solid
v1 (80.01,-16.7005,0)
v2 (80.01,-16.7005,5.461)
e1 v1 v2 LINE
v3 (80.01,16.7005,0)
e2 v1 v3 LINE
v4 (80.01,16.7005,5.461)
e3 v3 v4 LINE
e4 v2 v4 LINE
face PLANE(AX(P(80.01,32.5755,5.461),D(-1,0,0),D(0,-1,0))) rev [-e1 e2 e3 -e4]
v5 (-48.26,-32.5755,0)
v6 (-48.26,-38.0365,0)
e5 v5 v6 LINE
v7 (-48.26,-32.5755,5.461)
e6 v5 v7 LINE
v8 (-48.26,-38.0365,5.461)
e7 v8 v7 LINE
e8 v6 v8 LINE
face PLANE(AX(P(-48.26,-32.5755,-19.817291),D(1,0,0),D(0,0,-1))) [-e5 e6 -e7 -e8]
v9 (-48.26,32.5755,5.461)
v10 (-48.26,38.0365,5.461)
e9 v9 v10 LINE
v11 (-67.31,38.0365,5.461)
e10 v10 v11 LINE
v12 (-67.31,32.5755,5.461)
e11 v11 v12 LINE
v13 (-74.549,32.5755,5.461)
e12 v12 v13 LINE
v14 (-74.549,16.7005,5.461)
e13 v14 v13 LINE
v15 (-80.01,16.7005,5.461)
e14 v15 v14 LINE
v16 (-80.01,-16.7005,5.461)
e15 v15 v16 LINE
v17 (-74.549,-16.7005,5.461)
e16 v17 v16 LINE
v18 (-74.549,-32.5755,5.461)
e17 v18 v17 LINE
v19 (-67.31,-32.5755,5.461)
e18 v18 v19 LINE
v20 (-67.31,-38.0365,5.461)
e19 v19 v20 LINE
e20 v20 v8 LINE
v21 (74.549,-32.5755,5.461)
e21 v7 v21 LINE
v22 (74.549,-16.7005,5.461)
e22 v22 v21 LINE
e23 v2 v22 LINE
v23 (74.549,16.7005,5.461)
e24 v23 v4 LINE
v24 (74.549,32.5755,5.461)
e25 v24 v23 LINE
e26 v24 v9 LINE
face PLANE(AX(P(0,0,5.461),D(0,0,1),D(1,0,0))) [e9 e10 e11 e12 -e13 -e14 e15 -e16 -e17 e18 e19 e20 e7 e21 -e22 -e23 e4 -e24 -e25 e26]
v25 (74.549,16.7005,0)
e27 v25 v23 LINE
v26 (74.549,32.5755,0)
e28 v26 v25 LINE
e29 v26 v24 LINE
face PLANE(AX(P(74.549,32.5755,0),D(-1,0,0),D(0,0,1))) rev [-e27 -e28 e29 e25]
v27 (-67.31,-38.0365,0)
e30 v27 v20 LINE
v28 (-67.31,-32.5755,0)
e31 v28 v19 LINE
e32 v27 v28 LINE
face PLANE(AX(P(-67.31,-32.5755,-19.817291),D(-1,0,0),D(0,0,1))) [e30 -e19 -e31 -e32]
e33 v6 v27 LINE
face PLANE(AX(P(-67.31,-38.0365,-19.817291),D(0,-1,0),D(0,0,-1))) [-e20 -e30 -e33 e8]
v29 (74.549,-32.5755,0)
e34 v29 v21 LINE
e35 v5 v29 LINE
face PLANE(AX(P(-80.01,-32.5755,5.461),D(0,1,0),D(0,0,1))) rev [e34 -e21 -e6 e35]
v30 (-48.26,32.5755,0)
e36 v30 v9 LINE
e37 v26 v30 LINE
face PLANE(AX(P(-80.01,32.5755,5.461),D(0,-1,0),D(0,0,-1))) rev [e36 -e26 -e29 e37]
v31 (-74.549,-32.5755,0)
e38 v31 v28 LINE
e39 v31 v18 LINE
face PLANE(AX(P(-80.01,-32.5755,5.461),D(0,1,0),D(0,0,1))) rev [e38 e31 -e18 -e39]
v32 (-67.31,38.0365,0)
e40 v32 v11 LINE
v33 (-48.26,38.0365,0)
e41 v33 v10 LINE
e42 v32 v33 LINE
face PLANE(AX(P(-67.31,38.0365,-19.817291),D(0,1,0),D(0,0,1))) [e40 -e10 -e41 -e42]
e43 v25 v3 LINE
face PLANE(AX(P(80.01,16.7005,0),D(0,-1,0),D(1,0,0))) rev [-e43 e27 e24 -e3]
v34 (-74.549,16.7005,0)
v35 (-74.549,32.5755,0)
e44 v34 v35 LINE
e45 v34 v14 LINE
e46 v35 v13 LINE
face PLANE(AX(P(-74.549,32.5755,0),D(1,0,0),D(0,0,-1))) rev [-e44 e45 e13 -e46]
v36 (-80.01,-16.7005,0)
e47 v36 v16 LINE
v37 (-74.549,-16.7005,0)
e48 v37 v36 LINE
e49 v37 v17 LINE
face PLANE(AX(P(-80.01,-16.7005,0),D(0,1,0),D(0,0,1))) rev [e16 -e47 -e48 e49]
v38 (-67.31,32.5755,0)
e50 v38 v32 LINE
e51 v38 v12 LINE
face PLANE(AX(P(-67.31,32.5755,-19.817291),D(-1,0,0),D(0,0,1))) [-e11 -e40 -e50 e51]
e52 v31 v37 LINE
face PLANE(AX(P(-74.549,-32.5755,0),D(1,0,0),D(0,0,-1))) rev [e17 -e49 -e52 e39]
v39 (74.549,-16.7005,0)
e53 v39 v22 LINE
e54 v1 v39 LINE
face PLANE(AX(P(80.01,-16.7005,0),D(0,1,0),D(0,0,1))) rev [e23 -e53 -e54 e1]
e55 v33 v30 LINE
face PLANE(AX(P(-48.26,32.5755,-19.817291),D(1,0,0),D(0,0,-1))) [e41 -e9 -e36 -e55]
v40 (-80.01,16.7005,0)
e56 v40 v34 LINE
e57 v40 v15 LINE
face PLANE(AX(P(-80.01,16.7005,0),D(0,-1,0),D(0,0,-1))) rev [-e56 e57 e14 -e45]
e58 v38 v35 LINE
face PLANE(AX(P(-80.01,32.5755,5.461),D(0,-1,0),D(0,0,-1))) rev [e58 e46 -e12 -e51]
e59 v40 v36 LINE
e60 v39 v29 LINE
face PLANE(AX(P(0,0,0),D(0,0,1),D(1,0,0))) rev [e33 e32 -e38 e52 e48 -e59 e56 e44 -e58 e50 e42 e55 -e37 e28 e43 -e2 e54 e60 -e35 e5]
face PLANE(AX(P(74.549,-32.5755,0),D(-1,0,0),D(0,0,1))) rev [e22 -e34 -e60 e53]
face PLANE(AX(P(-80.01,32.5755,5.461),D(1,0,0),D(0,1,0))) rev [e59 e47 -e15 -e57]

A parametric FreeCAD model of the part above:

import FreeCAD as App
import Part
import Sketcher
from FreeCAD import Vector
Q = App.Units.Quantity

doc = App.newDocument("Part")
params = doc.addObject("Spreadsheet::Sheet", "Params")
for row, (alias, value) in enumerate([
    ("sketch1_width", "6.3 in"),
    ("sketch1_height", "2.565 in"),
    ("pad1_length", "0.215 in"),
    ("sketch2_width", "0.215 in"),
    ("sketch2_height", "0.625 in"),
    ("sketch3_width", "0.75 in"),
    ("sketch3_height", "0.215 in"),
    ("pad2_length", "0.215 in"),
], start=1):
    params.set(f"A{row}", alias)
    params.set(f"B{row}", "=" + value)
    params.setAlias(f"B{row}", alias)

body = doc.addObject("PartDesign::Body", "Body")

sketch1 = doc.addObject("Sketcher::SketchObject", "Sketch")
body.addObject(sketch1)
sketch1.AttachmentSupport = (doc.XY_Plane, [""])
sketch1.MapMode = "FlatFace"
sketch1.addGeometry(Part.LineSegment(Vector(-80, 33, 0), Vector(-80, -33, 0)), False)
sketch1.addGeometry(Part.LineSegment(Vector(-80, -33, 0), Vector(80, -33, 0)), False)
sketch1.addGeometry(Part.LineSegment(Vector(80, -33, 0), Vector(80, 33, 0)), False)
sketch1.addGeometry(Part.LineSegment(Vector(80, 33, 0), Vector(-80, 33, 0)), False)
sketch1.addConstraint(Sketcher.Constraint("Coincident", 0, 2, 1, 1))
sketch1.addConstraint(Sketcher.Constraint("Coincident", 1, 2, 2, 1))
sketch1.addConstraint(Sketcher.Constraint("Coincident", 2, 2, 3, 1))
sketch1.addConstraint(Sketcher.Constraint("Coincident", 3, 2, 0, 1))
sketch1.addConstraint(Sketcher.Constraint("Vertical", 0))
sketch1.addConstraint(Sketcher.Constraint("Horizontal", 1))
sketch1.addConstraint(Sketcher.Constraint("Vertical", 2))
sketch1.addConstraint(Sketcher.Constraint("Horizontal", 3))
sketch1.addConstraint(Sketcher.Constraint("Symmetric", 0, 2, 2, 2, -1, 1))
sketch1.addConstraint(Sketcher.Constraint("DistanceX", 1, 1, 1, 2, Q("6.3 in")))
sketch1.addConstraint(Sketcher.Constraint("DistanceY", 0, 2, 0, 1, Q("2.565 in")))
sketch1.setExpression("Constraints[9]", "Params.sketch1_width")
sketch1.setExpression("Constraints[10]", "Params.sketch1_height")
pad1 = doc.addObject("PartDesign::Pad", "Pad")
body.addObject(pad1)
pad1.Profile = sketch1
pad1.setExpression("Length", "Params.pad1_length")

sketch2 = doc.addObject("Sketcher::SketchObject", "Sketch001")
body.addObject(sketch2)
sketch2.AttachmentSupport = (doc.XY_Plane, [""])
sketch2.MapMode = "FlatFace"
sketch2.AttachmentOffset = App.Placement(Vector(0, 0, 0.215 * 25.4), App.Rotation())
sketch2.addGeometry(Part.LineSegment(Vector(-80, 33, 0), Vector(-80, 17, 0)), False)
sketch2.addGeometry(Part.LineSegment(Vector(-80, 17, 0), Vector(-75, 17, 0)), False)
sketch2.addGeometry(Part.LineSegment(Vector(-75, 17, 0), Vector(-75, 33, 0)), False)
sketch2.addGeometry(Part.LineSegment(Vector(-75, 33, 0), Vector(-80, 33, 0)), False)
sketch2.addGeometry(Part.LineSegment(Vector(-80, -17, 0), Vector(-80, -33, 0)), False)
sketch2.addGeometry(Part.LineSegment(Vector(-80, -33, 0), Vector(-75, -33, 0)), False)
sketch2.addGeometry(Part.LineSegment(Vector(-75, -33, 0), Vector(-75, -17, 0)), False)
sketch2.addGeometry(Part.LineSegment(Vector(-75, -17, 0), Vector(-80, -17, 0)), False)
sketch2.addGeometry(Part.LineSegment(Vector(75, 33, 0), Vector(75, 17, 0)), False)
sketch2.addGeometry(Part.LineSegment(Vector(75, 17, 0), Vector(80, 17, 0)), False)
sketch2.addGeometry(Part.LineSegment(Vector(80, 17, 0), Vector(80, 33, 0)), False)
sketch2.addGeometry(Part.LineSegment(Vector(80, 33, 0), Vector(75, 33, 0)), False)
sketch2.addGeometry(Part.LineSegment(Vector(75, -17, 0), Vector(75, -33, 0)), False)
sketch2.addGeometry(Part.LineSegment(Vector(75, -33, 0), Vector(80, -33, 0)), False)
sketch2.addGeometry(Part.LineSegment(Vector(80, -33, 0), Vector(80, -17, 0)), False)
sketch2.addGeometry(Part.LineSegment(Vector(80, -17, 0), Vector(75, -17, 0)), False)
sketch2.addConstraint(Sketcher.Constraint("Coincident", 0, 2, 1, 1))
sketch2.addConstraint(Sketcher.Constraint("Coincident", 1, 2, 2, 1))
sketch2.addConstraint(Sketcher.Constraint("Coincident", 2, 2, 3, 1))
sketch2.addConstraint(Sketcher.Constraint("Coincident", 3, 2, 0, 1))
sketch2.addConstraint(Sketcher.Constraint("Coincident", 4, 2, 5, 1))
sketch2.addConstraint(Sketcher.Constraint("Coincident", 5, 2, 6, 1))
sketch2.addConstraint(Sketcher.Constraint("Coincident", 6, 2, 7, 1))
sketch2.addConstraint(Sketcher.Constraint("Coincident", 7, 2, 4, 1))
sketch2.addConstraint(Sketcher.Constraint("Coincident", 8, 2, 9, 1))
sketch2.addConstraint(Sketcher.Constraint("Coincident", 9, 2, 10, 1))
sketch2.addConstraint(Sketcher.Constraint("Coincident", 10, 2, 11, 1))
sketch2.addConstraint(Sketcher.Constraint("Coincident", 11, 2, 8, 1))
sketch2.addConstraint(Sketcher.Constraint("Coincident", 12, 2, 13, 1))
sketch2.addConstraint(Sketcher.Constraint("Coincident", 13, 2, 14, 1))
sketch2.addConstraint(Sketcher.Constraint("Coincident", 14, 2, 15, 1))
sketch2.addConstraint(Sketcher.Constraint("Coincident", 15, 2, 12, 1))
sketch2.addConstraint(Sketcher.Constraint("Vertical", 0))
sketch2.addConstraint(Sketcher.Constraint("Horizontal", 1))
sketch2.addConstraint(Sketcher.Constraint("Vertical", 2))
sketch2.addConstraint(Sketcher.Constraint("Horizontal", 3))
sketch2.addConstraint(Sketcher.Constraint("Vertical", 4))
sketch2.addConstraint(Sketcher.Constraint("Horizontal", 5))
sketch2.addConstraint(Sketcher.Constraint("Vertical", 6))
sketch2.addConstraint(Sketcher.Constraint("Horizontal", 7))
sketch2.addConstraint(Sketcher.Constraint("Vertical", 8))
sketch2.addConstraint(Sketcher.Constraint("Horizontal", 9))
sketch2.addConstraint(Sketcher.Constraint("Vertical", 10))
sketch2.addConstraint(Sketcher.Constraint("Horizontal", 11))
sketch2.addConstraint(Sketcher.Constraint("Vertical", 12))
sketch2.addConstraint(Sketcher.Constraint("Horizontal", 13))
sketch2.addConstraint(Sketcher.Constraint("Vertical", 14))
sketch2.addConstraint(Sketcher.Constraint("Horizontal", 15))
sketch2.addConstraint(Sketcher.Constraint("Symmetric", 6, 2, 8, 2, -1, 1))
sketch2.addConstraint(Sketcher.Constraint("Symmetric", 4, 2, 10, 2, -1, 1))
sketch2.addConstraint(Sketcher.Constraint("Symmetric", 2, 2, 12, 2, -1, 1))
sketch2.addConstraint(Sketcher.Constraint("Symmetric", 0, 2, 14, 2, -1, 1))
sketch2.addConstraint(Sketcher.Constraint("Symmetric", 1, 2, 8, 2, -2))
sketch2.addConstraint(Sketcher.Constraint("Symmetric", 3, 2, 10, 2, -2))
sketch2.addConstraint(Sketcher.Constraint("DistanceX", 0, 2, 9, 2, Q("6.3 in")))
sketch2.addConstraint(Sketcher.Constraint("DistanceX", 1, 1, 1, 2, Q("0.215 in")))
sketch2.addConstraint(Sketcher.Constraint("DistanceY", 0, 2, 0, 1, Q("0.625 in")))
sketch2.addConstraint(Sketcher.Constraint("DistanceY", 4, 2, 0, 2, Q("1.94 in")))
sketch2.setExpression("Constraints[39]", "Params.sketch2_width")
sketch2.setExpression("Constraints[40]", "Params.sketch2_height")
pocket1 = doc.addObject("PartDesign::Pocket", "Pocket")
body.addObject(pocket1)
pocket1.Profile = sketch2
pocket1.Type = "ThroughAll"

sketch3 = doc.addObject("Sketcher::SketchObject", "Sketch002")
body.addObject(sketch3)
sketch3.AttachmentSupport = (doc.XY_Plane, [""])
sketch3.MapMode = "FlatFace"
sketch3.AttachmentOffset = App.Placement(Vector(0, 0, 0.215 * 25.4), App.Rotation())
sketch3.addGeometry(Part.LineSegment(Vector(-67, 38, 0), Vector(-67, 33, 0)), False)
sketch3.addGeometry(Part.LineSegment(Vector(-67, 33, 0), Vector(-48, 33, 0)), False)
sketch3.addGeometry(Part.LineSegment(Vector(-48, 33, 0), Vector(-48, 38, 0)), False)
sketch3.addGeometry(Part.LineSegment(Vector(-48, 38, 0), Vector(-67, 38, 0)), False)
sketch3.addGeometry(Part.LineSegment(Vector(-67, -33, 0), Vector(-67, -38, 0)), False)
sketch3.addGeometry(Part.LineSegment(Vector(-67, -38, 0), Vector(-48, -38, 0)), False)
sketch3.addGeometry(Part.LineSegment(Vector(-48, -38, 0), Vector(-48, -33, 0)), False)
sketch3.addGeometry(Part.LineSegment(Vector(-48, -33, 0), Vector(-67, -33, 0)), False)
sketch3.addConstraint(Sketcher.Constraint("Coincident", 0, 2, 1, 1))
sketch3.addConstraint(Sketcher.Constraint("Coincident", 1, 2, 2, 1))
sketch3.addConstraint(Sketcher.Constraint("Coincident", 2, 2, 3, 1))
sketch3.addConstraint(Sketcher.Constraint("Coincident", 3, 2, 0, 1))
sketch3.addConstraint(Sketcher.Constraint("Coincident", 4, 2, 5, 1))
sketch3.addConstraint(Sketcher.Constraint("Coincident", 5, 2, 6, 1))
sketch3.addConstraint(Sketcher.Constraint("Coincident", 6, 2, 7, 1))
sketch3.addConstraint(Sketcher.Constraint("Coincident", 7, 2, 4, 1))
sketch3.addConstraint(Sketcher.Constraint("Vertical", 0))
sketch3.addConstraint(Sketcher.Constraint("Horizontal", 1))
sketch3.addConstraint(Sketcher.Constraint("Vertical", 2))
sketch3.addConstraint(Sketcher.Constraint("Horizontal", 3))
sketch3.addConstraint(Sketcher.Constraint("Vertical", 4))
sketch3.addConstraint(Sketcher.Constraint("Horizontal", 5))
sketch3.addConstraint(Sketcher.Constraint("Vertical", 6))
sketch3.addConstraint(Sketcher.Constraint("Horizontal", 7))
sketch3.addConstraint(Sketcher.Constraint("Symmetric", 3, 2, 4, 2, -1))
sketch3.addConstraint(Sketcher.Constraint("Symmetric", 1, 2, 6, 2, -1))
sketch3.addConstraint(Sketcher.Constraint("DistanceX", 1, 1, 1, 2, Q("0.75 in")))
sketch3.addConstraint(Sketcher.Constraint("DistanceX", 1, 2, -1, 1, Q("1.9 in")))
sketch3.addConstraint(Sketcher.Constraint("DistanceY", 0, 2, 0, 1, Q("0.215 in")))
sketch3.addConstraint(Sketcher.Constraint("DistanceY", 4, 2, 0, 2, Q("2.78 in")))
sketch3.setExpression("Constraints[18]", "Params.sketch3_width")
sketch3.setExpression("Constraints[20]", "Params.sketch3_height")
pad2 = doc.addObject("PartDesign::Pad", "Pad001")
body.addObject(pad2)
pad2.Profile = sketch3
pad2.setExpression("Length", "Params.pad2_length")
pad2.Reversed = True

doc.recompute()
